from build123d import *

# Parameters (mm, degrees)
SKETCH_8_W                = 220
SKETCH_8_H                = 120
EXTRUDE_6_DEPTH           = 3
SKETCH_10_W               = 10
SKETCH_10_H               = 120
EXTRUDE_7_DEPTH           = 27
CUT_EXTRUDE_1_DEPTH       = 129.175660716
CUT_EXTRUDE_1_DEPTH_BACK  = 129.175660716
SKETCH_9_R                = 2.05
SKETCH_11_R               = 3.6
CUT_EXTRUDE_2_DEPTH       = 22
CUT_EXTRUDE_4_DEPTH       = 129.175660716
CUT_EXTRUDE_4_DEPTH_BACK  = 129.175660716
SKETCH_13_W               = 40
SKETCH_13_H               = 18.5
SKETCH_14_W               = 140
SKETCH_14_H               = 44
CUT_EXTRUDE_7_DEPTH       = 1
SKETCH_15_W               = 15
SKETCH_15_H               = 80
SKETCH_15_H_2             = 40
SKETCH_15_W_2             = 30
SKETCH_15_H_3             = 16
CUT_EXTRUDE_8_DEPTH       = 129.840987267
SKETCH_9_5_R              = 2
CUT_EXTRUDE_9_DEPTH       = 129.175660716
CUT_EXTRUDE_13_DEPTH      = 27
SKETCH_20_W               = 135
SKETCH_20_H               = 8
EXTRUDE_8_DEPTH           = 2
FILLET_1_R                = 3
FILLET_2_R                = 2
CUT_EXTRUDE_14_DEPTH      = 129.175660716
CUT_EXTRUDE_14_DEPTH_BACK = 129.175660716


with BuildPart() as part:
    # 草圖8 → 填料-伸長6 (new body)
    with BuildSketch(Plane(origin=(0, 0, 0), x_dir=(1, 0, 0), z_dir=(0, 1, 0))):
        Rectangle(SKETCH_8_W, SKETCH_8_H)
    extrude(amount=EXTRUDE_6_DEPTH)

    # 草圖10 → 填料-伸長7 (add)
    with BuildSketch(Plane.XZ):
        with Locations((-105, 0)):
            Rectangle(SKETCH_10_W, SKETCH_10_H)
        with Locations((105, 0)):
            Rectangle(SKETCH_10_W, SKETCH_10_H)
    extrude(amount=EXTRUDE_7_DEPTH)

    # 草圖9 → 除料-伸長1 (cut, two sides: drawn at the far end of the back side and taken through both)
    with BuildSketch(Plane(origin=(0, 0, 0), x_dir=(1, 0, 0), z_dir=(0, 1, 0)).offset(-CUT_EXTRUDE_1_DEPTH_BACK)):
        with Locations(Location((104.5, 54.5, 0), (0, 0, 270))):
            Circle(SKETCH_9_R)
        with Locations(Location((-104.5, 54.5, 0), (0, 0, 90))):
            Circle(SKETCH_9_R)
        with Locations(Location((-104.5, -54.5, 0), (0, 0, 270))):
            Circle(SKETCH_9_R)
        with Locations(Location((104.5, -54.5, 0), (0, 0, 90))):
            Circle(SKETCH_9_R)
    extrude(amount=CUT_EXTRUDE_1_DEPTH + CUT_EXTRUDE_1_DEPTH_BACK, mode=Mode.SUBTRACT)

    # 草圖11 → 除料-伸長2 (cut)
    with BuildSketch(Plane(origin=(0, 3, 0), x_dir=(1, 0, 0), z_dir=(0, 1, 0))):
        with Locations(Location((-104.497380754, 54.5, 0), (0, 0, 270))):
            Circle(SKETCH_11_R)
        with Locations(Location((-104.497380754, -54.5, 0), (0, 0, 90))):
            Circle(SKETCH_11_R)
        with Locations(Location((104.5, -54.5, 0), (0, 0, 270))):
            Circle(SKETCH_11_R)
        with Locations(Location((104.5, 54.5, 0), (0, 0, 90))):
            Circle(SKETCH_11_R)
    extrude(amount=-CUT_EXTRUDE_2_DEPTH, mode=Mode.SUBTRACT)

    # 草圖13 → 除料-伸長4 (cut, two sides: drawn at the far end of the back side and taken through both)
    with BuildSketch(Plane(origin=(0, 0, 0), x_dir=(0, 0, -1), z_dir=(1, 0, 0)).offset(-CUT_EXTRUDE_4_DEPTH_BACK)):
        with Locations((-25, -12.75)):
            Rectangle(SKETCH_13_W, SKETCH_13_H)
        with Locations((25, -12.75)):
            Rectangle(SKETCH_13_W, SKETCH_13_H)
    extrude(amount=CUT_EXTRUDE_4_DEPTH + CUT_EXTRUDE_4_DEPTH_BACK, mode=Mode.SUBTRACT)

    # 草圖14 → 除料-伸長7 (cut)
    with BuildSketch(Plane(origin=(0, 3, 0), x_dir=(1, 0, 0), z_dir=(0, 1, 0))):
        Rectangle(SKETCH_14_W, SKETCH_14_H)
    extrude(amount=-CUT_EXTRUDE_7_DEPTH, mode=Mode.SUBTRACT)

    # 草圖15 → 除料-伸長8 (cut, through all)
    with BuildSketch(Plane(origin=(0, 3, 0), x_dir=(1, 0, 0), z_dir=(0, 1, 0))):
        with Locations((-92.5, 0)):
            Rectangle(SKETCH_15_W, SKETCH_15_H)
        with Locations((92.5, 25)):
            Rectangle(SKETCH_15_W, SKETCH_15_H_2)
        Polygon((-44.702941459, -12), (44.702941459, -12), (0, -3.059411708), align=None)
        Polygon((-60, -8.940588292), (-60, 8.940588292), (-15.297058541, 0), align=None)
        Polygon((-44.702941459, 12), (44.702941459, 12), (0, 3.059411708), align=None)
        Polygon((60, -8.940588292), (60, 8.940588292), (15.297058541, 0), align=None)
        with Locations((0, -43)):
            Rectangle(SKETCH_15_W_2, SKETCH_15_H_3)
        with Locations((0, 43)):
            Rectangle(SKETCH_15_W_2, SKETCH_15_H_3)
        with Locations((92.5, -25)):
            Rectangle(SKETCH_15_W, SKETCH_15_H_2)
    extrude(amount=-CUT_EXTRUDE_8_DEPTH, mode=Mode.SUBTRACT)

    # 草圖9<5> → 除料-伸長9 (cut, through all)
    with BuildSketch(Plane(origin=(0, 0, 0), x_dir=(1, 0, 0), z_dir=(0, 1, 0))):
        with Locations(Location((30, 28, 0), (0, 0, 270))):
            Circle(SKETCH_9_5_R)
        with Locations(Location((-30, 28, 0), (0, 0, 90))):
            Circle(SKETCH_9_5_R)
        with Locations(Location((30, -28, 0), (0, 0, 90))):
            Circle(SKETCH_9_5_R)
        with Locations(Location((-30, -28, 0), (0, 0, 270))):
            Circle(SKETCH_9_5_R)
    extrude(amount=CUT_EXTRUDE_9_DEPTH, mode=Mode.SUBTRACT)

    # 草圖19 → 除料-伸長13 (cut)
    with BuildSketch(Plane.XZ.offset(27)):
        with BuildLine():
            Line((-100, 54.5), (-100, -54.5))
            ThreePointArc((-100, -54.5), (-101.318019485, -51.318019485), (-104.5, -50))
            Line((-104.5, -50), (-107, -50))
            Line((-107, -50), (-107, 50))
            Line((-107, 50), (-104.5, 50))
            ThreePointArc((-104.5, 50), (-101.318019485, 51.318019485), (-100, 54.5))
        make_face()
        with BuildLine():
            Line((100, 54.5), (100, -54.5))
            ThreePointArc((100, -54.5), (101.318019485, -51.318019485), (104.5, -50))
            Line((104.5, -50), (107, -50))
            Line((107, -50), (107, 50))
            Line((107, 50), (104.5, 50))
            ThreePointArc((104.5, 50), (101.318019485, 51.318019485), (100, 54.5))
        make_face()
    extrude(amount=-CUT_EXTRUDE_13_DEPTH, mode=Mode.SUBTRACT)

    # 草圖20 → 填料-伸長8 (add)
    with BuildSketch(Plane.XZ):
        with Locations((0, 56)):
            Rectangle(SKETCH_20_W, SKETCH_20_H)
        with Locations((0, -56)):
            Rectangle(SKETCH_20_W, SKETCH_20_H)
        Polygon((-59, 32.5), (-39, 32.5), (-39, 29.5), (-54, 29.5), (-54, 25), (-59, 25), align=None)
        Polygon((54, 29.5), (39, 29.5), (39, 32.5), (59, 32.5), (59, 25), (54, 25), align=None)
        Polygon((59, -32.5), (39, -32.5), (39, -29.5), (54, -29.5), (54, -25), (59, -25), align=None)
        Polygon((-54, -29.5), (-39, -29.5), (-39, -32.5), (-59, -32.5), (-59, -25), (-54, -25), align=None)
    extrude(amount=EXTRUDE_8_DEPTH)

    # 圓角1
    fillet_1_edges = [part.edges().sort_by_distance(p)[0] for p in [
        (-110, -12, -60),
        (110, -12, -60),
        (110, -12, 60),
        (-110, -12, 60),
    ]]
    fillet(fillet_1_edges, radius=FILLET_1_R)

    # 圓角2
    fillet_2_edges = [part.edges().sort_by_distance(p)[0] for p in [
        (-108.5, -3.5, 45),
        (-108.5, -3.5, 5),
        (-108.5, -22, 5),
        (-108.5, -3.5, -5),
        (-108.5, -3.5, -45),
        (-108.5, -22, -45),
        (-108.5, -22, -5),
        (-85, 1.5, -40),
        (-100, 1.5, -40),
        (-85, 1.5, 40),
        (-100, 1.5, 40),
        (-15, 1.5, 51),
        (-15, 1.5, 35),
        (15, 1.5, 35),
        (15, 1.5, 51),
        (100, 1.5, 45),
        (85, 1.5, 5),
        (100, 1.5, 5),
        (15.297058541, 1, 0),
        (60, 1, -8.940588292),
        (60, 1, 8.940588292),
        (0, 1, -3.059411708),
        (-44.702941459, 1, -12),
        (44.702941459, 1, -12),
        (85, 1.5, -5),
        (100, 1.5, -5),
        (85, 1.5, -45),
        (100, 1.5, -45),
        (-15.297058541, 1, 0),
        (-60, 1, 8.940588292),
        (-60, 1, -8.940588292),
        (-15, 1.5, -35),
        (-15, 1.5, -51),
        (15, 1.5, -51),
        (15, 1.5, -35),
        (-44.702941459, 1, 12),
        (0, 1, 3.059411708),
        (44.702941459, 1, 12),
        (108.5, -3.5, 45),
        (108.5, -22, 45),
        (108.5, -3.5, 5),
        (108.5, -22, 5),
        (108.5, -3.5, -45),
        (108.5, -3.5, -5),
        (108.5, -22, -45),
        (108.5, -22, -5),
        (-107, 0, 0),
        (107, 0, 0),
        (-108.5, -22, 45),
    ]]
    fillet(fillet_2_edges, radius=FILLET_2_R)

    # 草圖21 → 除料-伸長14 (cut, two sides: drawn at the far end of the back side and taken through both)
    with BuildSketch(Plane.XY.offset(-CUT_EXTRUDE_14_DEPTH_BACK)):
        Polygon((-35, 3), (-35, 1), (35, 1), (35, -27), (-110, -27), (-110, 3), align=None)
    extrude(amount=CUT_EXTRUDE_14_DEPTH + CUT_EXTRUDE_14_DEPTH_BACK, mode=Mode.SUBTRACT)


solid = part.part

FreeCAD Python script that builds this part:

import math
import FreeCAD as App
import Part
import Sketcher
from FreeCAD import Vector
Q = App.Units.Quantity


def edges_at(feature, points):
    """Names of the edges that pass closest to the given points."""
    edges = feature.Shape.Edges
    near = lambda p: min(range(len(edges)), key=lambda i: edges[i].distToShape(Part.Vertex(*p))[0])
    return sorted({f"Edge{near(p) + 1}" for p in points})


def add_polygon(sketch, points):
    """Adds a closed chain of lines whose ends are joined by coincident constraints."""
    first, n = sketch.GeometryCount, len(points)
    for a, b in zip(points, points[1:] + points[:1]):
        sketch.addGeometry(Part.LineSegment(App.Vector(*a, 0), App.Vector(*b, 0)), False)
    for i in range(n):
        sketch.addConstraint(Sketcher.Constraint("Coincident", first + i, 2, first + (i + 1) % n, 1))

doc = App.newDocument("Part")
body = doc.addObject("PartDesign::Body", "Body")

sketch1 = body.newObject("Sketcher::SketchObject", "Sketch")
sketch1.AttachmentSupport = (doc.getObject("XZ_Plane"), [""])
sketch1.MapMode = "FlatFace"
add_polygon(sketch1, [(-110, -60), (-110, 60), (110, 60), (110, -60)])
sketch1.addConstraint([
    Sketcher.Constraint("Vertical", 0),
    Sketcher.Constraint("Horizontal", 1),
    Sketcher.Constraint("Vertical", 2),
    Sketcher.Constraint("Horizontal", 3),
    Sketcher.Constraint("Symmetric", 0, 2, 2, 2, -1, 1),
    Sketcher.Constraint("DistanceX", 1, 1, 1, 2, Q("220 mm")),
    Sketcher.Constraint("DistanceY", 0, 1, 0, 2, Q("120 mm")),
])
pad1 = body.newObject("PartDesign::Pad", "Pad")
pad1.Profile = sketch1
pad1.Length = 3
pad1.Reversed = True

sketch2 = body.newObject("Sketcher::SketchObject", "Sketch001")
sketch2.AttachmentSupport = (doc.getObject("XZ_Plane"), [""])
sketch2.MapMode = "FlatFace"
add_polygon(sketch2, [(-110, 60), (-110, -60), (-100, -60), (-100, 60)])
add_polygon(sketch2, [(100, 60), (100, -60), (110, -60), (110, 60)])
sketch2.addConstraint([
    Sketcher.Constraint("Vertical", 0),
    Sketcher.Constraint("Horizontal", 1),
    Sketcher.Constraint("Vertical", 2),
    Sketcher.Constraint("Horizontal", 3),
    Sketcher.Constraint("Vertical", 4),
    Sketcher.Constraint("Horizontal", 5),
    Sketcher.Constraint("Vertical", 6),
    Sketcher.Constraint("Horizontal", 7),
    Sketcher.Constraint("Symmetric", 2, 2, 4, 2, -1, 1),
    Sketcher.Constraint("Symmetric", 0, 2, 6, 2, -1, 1),
    Sketcher.Constraint("Horizontal", 1, 2, 4, 2),
    Sketcher.Constraint("DistanceX", 1, 1, 1, 2, Q("10 mm")),
    Sketcher.Constraint("DistanceY", 0, 2, 0, 1, Q("120 mm")),
    Sketcher.Constraint("DistanceX", 0, 2, -1, 1, Q("110 mm")),
])
pad2 = body.newObject("PartDesign::Pad", "Pad001")
pad2.Profile = sketch2
pad2.Length = 27

sketch3 = body.newObject("Sketcher::SketchObject", "Sketch002")
sketch3.AttachmentSupport = (doc.getObject("XZ_Plane"), [""])
sketch3.MapMode = "FlatFace"
sketch3.addGeometry([
    Part.Circle(Vector(104.5, -54.5, 0), Vector(0, 0, 1), 2.05),
    Part.Circle(Vector(-104.5, -54.5, 0), Vector(0, 0, 1), 2.05),
    Part.Circle(Vector(-104.5, 54.5, 0), Vector(0, 0, 1), 2.05),
    Part.Circle(Vector(104.5, 54.5, 0), Vector(0, 0, 1), 2.05),
], False)
sketch3.addConstraint([
    Sketcher.Constraint("Equal", 0, 1),
    Sketcher.Constraint("Equal", 1, 2),
    Sketcher.Constraint("Equal", 2, 3),
    Sketcher.Constraint("Symmetric", 0, 3, 2, 3, -1, 1),
    Sketcher.Constraint("Symmetric", 1, 3, 3, 3, -1, 1),
    Sketcher.Constraint("Symmetric", 0, 3, 1, 3, -2),
    Sketcher.Constraint("Diameter", 0, Q("4.1 mm")),
    Sketcher.Constraint("DistanceX", 1, 3, 0, 3, Q("209 mm")),
    Sketcher.Constraint("DistanceY", 1, 3, 2, 3, Q("109 mm")),
])
pocket1 = body.newObject("PartDesign::Pocket", "Pocket")
pocket1.Profile = sketch3
pocket1.Type = "ThroughAll"
pocket1.Midplane = True

sketch4 = body.newObject("Sketcher::SketchObject", "Sketch003")
sketch4.AttachmentSupport = (doc.getObject("XZ_Plane"), [""])
sketch4.MapMode = "FlatFace"
sketch4.AttachmentOffset = App.Placement(Vector(0, 0, -3), App.Rotation())
sketch4.addGeometry([
    Part.Circle(Vector(-104.497381, -54.5, 0), Vector(0, 0, 1), 3.6),
    Part.Circle(Vector(-104.497381, 54.5, 0), Vector(0, 0, 1), 3.6),
    Part.Circle(Vector(104.5, 54.5, 0), Vector(0, 0, 1), 3.6),
    Part.Circle(Vector(104.5, -54.5, 0), Vector(0, 0, 1), 3.6),
], False)
sketch4.addConstraint([
    Sketcher.Constraint("Equal", 0, 1),
    Sketcher.Constraint("Equal", 1, 2),
    Sketcher.Constraint("Equal", 2, 3),
    Sketcher.Constraint("Symmetric", 0, 3, 1, 3, -1),
    Sketcher.Constraint("Symmetric", 2, 3, 3, 3, -1),
    Sketcher.Constraint("Horizontal", 1, 3, 2, 3),
    Sketcher.Constraint("Diameter", 0, Q("7.2 mm")),
    Sketcher.Constraint("DistanceY", 0, 3, 1, 3, Q("109 mm")),
    Sketcher.Constraint("DistanceX", -1, 1, 2, 3, Q("104.5 mm")),
    Sketcher.Constraint("DistanceX", 0, 3, -1, 1, Q("104.497381 mm")),
])
pocket2 = body.newObject("PartDesign::Pocket", "Pocket001")
pocket2.Profile = sketch4
pocket2.Length = 22
pocket2.Reversed = True

sketch5 = body.newObject("Sketcher::SketchObject", "Sketch004")
sketch5.AttachmentSupport = (doc.getObject("YZ_Plane"), [""])
sketch5.MapMode = "FlatFace"
add_polygon(sketch5, [(-3.5, 45), (-22, 45), (-22, 5), (-3.5, 5)])
add_polygon(sketch5, [(-3.5, -5), (-22, -5), (-22, -45), (-3.5, -45)])
sketch5.addConstraint([
    Sketcher.Constraint("Horizontal", 0),
    Sketcher.Constraint("Vertical", 1),
    Sketcher.Constraint("Horizontal", 2),
    Sketcher.Constraint("Vertical", 3),
    Sketcher.Constraint("Horizontal", 4),
    Sketcher.Constraint("Vertical", 5),
    Sketcher.Constraint("Horizontal", 6),
    Sketcher.Constraint("Vertical", 7),
    Sketcher.Constraint("Symmetric", 1, 2, 4, 2, -1),
    Sketcher.Constraint("Symmetric", 3, 2, 6, 2, -1),
    Sketcher.Constraint("DistanceY", 1, 2, 1, 1, Q("40 mm")),
    Sketcher.Constraint("DistanceX", 0, 2, 0, 1, Q("18.5 mm")),
    Sketcher.Constraint("DistanceX", 0, 2, -1, 1, Q("22 mm")),
    Sketcher.Constraint("DistanceY", -1, 1, 0, 2, Q("45 mm")),
])
pocket3 = body.newObject("PartDesign::Pocket", "Pocket002")
pocket3.Profile = sketch5
pocket3.Type = "ThroughAll"
pocket3.Midplane = True

sketch6 = body.newObject("Sketcher::SketchObject", "Sketch005")
sketch6.AttachmentSupport = (doc.getObject("XZ_Plane"), [""])
sketch6.MapMode = "FlatFace"
sketch6.AttachmentOffset = App.Placement(Vector(0, 0, -3), App.Rotation())
add_polygon(sketch6, [(-70, -22), (-70, 22), (70, 22), (70, -22)])
sketch6.addConstraint([
    Sketcher.Constraint("Vertical", 0),
    Sketcher.Constraint("Horizontal", 1),
    Sketcher.Constraint("Vertical", 2),
    Sketcher.Constraint("Horizontal", 3),
    Sketcher.Constraint("Symmetric", 0, 2, 2, 2, -1, 1),
    Sketcher.Constraint("DistanceX", 1, 1, 1, 2, Q("140 mm")),
    Sketcher.Constraint("DistanceY", 0, 1, 0, 2, Q("44 mm")),
])
pocket4 = body.newObject("PartDesign::Pocket", "Pocket003")
pocket4.Profile = sketch6
pocket4.Length = 1
pocket4.Reversed = True

sketch7 = body.newObject("Sketcher::SketchObject", "Sketch006")
sketch7.AttachmentSupport = (doc.getObject("XZ_Plane"), [""])
sketch7.MapMode = "FlatFace"
sketch7.AttachmentOffset = App.Placement(Vector(0, 0, -3), App.Rotation())
add_polygon(sketch7, [(-100, -40), (-100, 40), (-85, 40), (-85, -40)])
add_polygon(sketch7, [(85, -45), (85, -5), (100, -5), (100, -45)])
add_polygon(sketch7, [(-44.702941, 12), (44.702941, 12), (0, 3.059412)])
add_polygon(sketch7, [(-60, -8.940588), (-60, 8.940588), (-15.297059, 0)])
add_polygon(sketch7, [(44.702941, -12), (-44.702941, -12), (0, -3.059412)])
add_polygon(sketch7, [(60, 8.940588), (60, -8.940588), (15.297059, 0)])
add_polygon(sketch7, [(-15, 35), (-15, 51), (15, 51), (15, 35)])
add_polygon(sketch7, [(-15, -51), (-15, -35), (15, -35), (15, -51)])
add_polygon(sketch7, [(85, 5), (85, 45), (100, 45), (100, 5)])
sketch7.addConstraint([
    Sketcher.Constraint("Vertical", 0),
    Sketcher.Constraint("Horizontal", 1),
    Sketcher.Constraint("Vertical", 2),
    Sketcher.Constraint("Horizontal", 3),
    Sketcher.Constraint("Vertical", 4),
    Sketcher.Constraint("Horizontal", 5),
    Sketcher.Constraint("Vertical", 6),
    Sketcher.Constraint("Horizontal", 7),
    Sketcher.Constraint("Horizontal", 8),
    Sketcher.Constraint("Vertical", 11),
    Sketcher.Constraint("Horizontal", 14),
    Sketcher.Constraint("Vertical", 17),
    Sketcher.Constraint("Vertical", 20),
    Sketcher.Constraint("Horizontal", 21),
    Sketcher.Constraint("Vertical", 22),
    Sketcher.Constraint("Horizontal", 23),
    Sketcher.Constraint("Vertical", 24),
    Sketcher.Constraint("Horizontal", 25),
    Sketcher.Constraint("Vertical", 26),
    Sketcher.Constraint("Horizontal", 27),
    Sketcher.Constraint("Vertical", 28),
    Sketcher.Constraint("Horizontal", 29),
    Sketcher.Constraint("Vertical", 30),
    Sketcher.Constraint("Horizontal", 31),
    Sketcher.Constraint("Symmetric", 8, 2, 14, 2, -1, 1),
    Sketcher.Constraint("Symmetric", 9, 2, 15, 2, -1, 1),
    Sketcher.Constraint("Symmetric", 11, 2, 17, 2, -1, 1),
    Sketcher.Constraint("Symmetric", 12, 2, 18, 2, -1, 1),
    Sketcher.Constraint("Symmetric", 22, 2, 24, 2, -1, 1),
    Sketcher.Constraint("Symmetric", 20, 2, 26, 2, -1, 1),
    Sketcher.Constraint("Symmetric", 7, 2, 28, 2, -1),
    Sketcher.Constraint("Symmetric", 5, 2, 30, 2, -1),
    Sketcher.Constraint("PointOnObject", 9, 2, -2),
    Sketcher.Constraint("PointOnObject", 12, 2, -1),
    Sketcher.Constraint("Parallel", 10, 12),
    Sketcher.Constraint("Parallel", 9, 13),
    Sketcher.Constraint("Parallel", 12, 16),
    Sketcher.Constraint("Parallel", 15, 19),
    Sketcher.Constraint("Horizontal", 13, 2, 17, 2),
    Sketcher.Constraint("Vertical", 23, 2, 24, 2),
    Sketcher.Constraint("Equal", 3, 5),
    Sketcher.Constraint("Equal", 10, 12),
    Sketcher.Constraint("DistanceX", 1, 1, 1, 2, Q("15 mm")),
    Sketcher.Constraint("DistanceX", 21, 1, 21, 2, Q("30 mm")),
    Sketcher.Constraint("DistanceY", 0, 1, 0, 2, Q("80 mm")),
    Sketcher.Constraint("DistanceY", 4, 1, 4, 2, Q("40 mm")),
    Sketcher.Constraint("DistanceY", 20, 1, 20, 2, Q("16 mm")),
    Sketcher.Constraint("DistanceX", 0, 2, -1, 1, Q("100 mm")),
    Sketcher.Constraint("DistanceY", -1, 1, 0, 2, Q("40 mm")),
    Sketcher.Constraint("DistanceX", -1, 1, 4, 2, Q("85 mm")),
    Sketcher.Constraint("DistanceY", 4, 2, -1, 1, Q("5 mm")),
    Sketcher.Constraint("DistanceY", -1, 1, 8, 2, Q("12 mm")),
    Sketcher.Constraint("DistanceX", 11, 2, -1, 1, Q("60 mm")),
    Sketcher.Constraint("DistanceY", -1, 1, 20, 2, Q("51 mm")),
    Sketcher.Constraint("DistanceX", 8, 1, 8, 2, Q("89.405883 mm")),
    Sketcher.Constraint("DistanceY", 11, 1, 11, 2, Q("17.881177 mm")),
])
pocket5 = body.newObject("PartDesign::Pocket", "Pocket004")
pocket5.Profile = sketch7
pocket5.Type = "ThroughAll"
pocket5.Reversed = True

sketch8 = body.newObject("Sketcher::SketchObject", "Sketch007")
sketch8.AttachmentSupport = (doc.getObject("XZ_Plane"), [""])
sketch8.MapMode = "FlatFace"
sketch8.addGeometry([
    Part.Circle(Vector(30, -28, 0), Vector(0, 0, 1), 2),
    Part.Circle(Vector(-30, -28, 0), Vector(0, 0, 1), 2),
    Part.Circle(Vector(30, 28, 0), Vector(0, 0, 1), 2),
    Part.Circle(Vector(-30, 28, 0), Vector(0, 0, 1), 2),
], False)
sketch8.addConstraint([
    Sketcher.Constraint("Equal", 0, 1),
    Sketcher.Constraint("Equal", 1, 2),
    Sketcher.Constraint("Equal", 2, 3),
    Sketcher.Constraint("Symmetric", 1, 3, 2, 3, -1, 1),
    Sketcher.Constraint("Symmetric", 0, 3, 3, 3, -1, 1),
    Sketcher.Constraint("Symmetric", 0, 3, 1, 3, -2),
    Sketcher.Constraint("Diameter", 0, Q("4 mm")),
    Sketcher.Constraint("DistanceX", -1, 1, 0, 3, Q("30 mm")),
    Sketcher.Constraint("DistanceY", 0, 3, -1, 1, Q("28 mm")),
])
pocket6 = body.newObject("PartDesign::Pocket", "Pocket005")
pocket6.Profile = sketch8
pocket6.Type = "ThroughAll"

sketch9 = body.newObject("Sketcher::SketchObject", "Sketch008")
sketch9.AttachmentSupport = (doc.getObject("XZ_Plane"), [""])
sketch9.MapMode = "FlatFace"
sketch9.AttachmentOffset = App.Placement(Vector(0, 0, 27), App.Rotation())
sketch9.addGeometry([
    Part.LineSegment(Vector(-100, -54.5, 0), Vector(-100, 54.5, 0)),
    Part.ArcOfCircle(Part.Circle(Vector(-104.5, 54.5, 0), Vector(0, 0, 1), 4.5), math.radians(-90), math.radians(0)),
    Part.LineSegment(Vector(-104.5, 50, 0), Vector(-107, 50, 0)),
    Part.LineSegment(Vector(-107, 50, 0), Vector(-107, -50, 0)),
    Part.LineSegment(Vector(-107, -50, 0), Vector(-104.5, -50, 0)),
    Part.ArcOfCircle(Part.Circle(Vector(-104.5, -54.5, 0), Vector(0, 0, 1), 4.5), math.radians(0), math.radians(90)),
    Part.LineSegment(Vector(100, 54.5, 0), Vector(100, -54.5, 0)),
    Part.ArcOfCircle(Part.Circle(Vector(104.5, -54.5, 0), Vector(0, 0, 1), 4.5), math.radians(90), math.radians(180)),
    Part.LineSegment(Vector(104.5, -50, 0), Vector(107, -50, 0)),
    Part.LineSegment(Vector(107, -50, 0), Vector(107, 50, 0)),
    Part.LineSegment(Vector(107, 50, 0), Vector(104.5, 50, 0)),
    Part.ArcOfCircle(Part.Circle(Vector(104.5, 54.5, 0), Vector(0, 0, 1), 4.5), math.radians(-180), math.radians(-90)),
], False)
sketch9.addConstraint([
    Sketcher.Constraint("Tangent", 0, 2, 1, 2),
    Sketcher.Constraint("Tangent", 1, 1, 2, 1),
    Sketcher.Constraint("Coincident", 2, 2, 3, 1),
    Sketcher.Constraint("Coincident", 3, 2, 4, 1),
    Sketcher.Constraint("Tangent", 4, 2, 5, 2),
    Sketcher.Constraint("Tangent", 5, 1, 0, 1),
    Sketcher.Constraint("Tangent", 6, 2, 7, 2),
    Sketcher.Constraint("Tangent", 7, 1, 8, 1),
    Sketcher.Constraint("Coincident", 8, 2, 9, 1),
    Sketcher.Constraint("Coincident", 9, 2, 10, 1),
    Sketcher.Constraint("Tangent", 10, 2, 11, 2),
    Sketcher.Constraint("Tangent", 11, 1, 6, 1),
    Sketcher.Constraint("Vertical", 0),
    Sketcher.Constraint("Horizontal", 2),
    Sketcher.Constraint("Vertical", 3),
    Sketcher.Constraint("Horizontal", 4),
    Sketcher.Constraint("Vertical", 6),
    Sketcher.Constraint("Horizontal", 8),
    Sketcher.Constraint("Vertical", 9),
    Sketcher.Constraint("Horizontal", 10),
    Sketcher.Constraint("Equal", 1, 5),
    Sketcher.Constraint("Equal", 5, 7),
    Sketcher.Constraint("Equal", 7, 11),
    Sketcher.Constraint("Symmetric", 1, 3, 7, 3, -1, 1),
    Sketcher.Constraint("Symmetric", 3, 2, 9, 2, -1, 1),
    Sketcher.Constraint("Horizontal", 5, 3, 7, 3),
    Sketcher.Constraint("Radius", 1, Q("4.5 mm")),
    Sketcher.Constraint("DistanceY", 0, 1, 0, 2, Q("109 mm")),
    Sketcher.Constraint("DistanceX", 2, 2, 2, 1, Q("2.5 mm")),
    Sketcher.Constraint("DistanceX", 0, 2, -1, 1, Q("100 mm")),
])
pocket7 = body.newObject("PartDesign::Pocket", "Pocket006")
pocket7.Profile = sketch9
pocket7.Length = 27

sketch10 = body.newObject("Sketcher::SketchObject", "Sketch009")
sketch10.AttachmentSupport = (doc.getObject("XZ_Plane"), [""])
sketch10.MapMode = "FlatFace"
add_polygon(sketch10, [(-67.5, 60), (-67.5, 52), (67.5, 52), (67.5, 60)])
add_polygon(sketch10, [(-67.5, -52), (-67.5, -60), (67.5, -60), (67.5, -52)])
add_polygon(sketch10, [(-39, 32.5), (-59, 32.5), (-59, 25), (-54, 25), (-54, 29.5), (-39, 29.5)])
add_polygon(sketch10, [(39, 29.5), (54, 29.5), (54, 25), (59, 25), (59, 32.5), (39, 32.5)])
add_polygon(sketch10, [(39, -32.5), (59, -32.5), (59, -25), (54, -25), (54, -29.5), (39, -29.5)])
add_polygon(sketch10, [(-39, -29.5), (-54, -29.5), (-54, -25), (-59, -25), (-59, -32.5), (-39, -32.5)])
sketch10.addConstraint([
    Sketcher.Constraint("Vertical", 0),
    Sketcher.Constraint("Horizontal", 1),
    Sketcher.Constraint("Vertical", 2),
    Sketcher.Constraint("Horizontal", 3),
    Sketcher.Constraint("Vertical", 4),
    Sketcher.Constraint("Horizontal", 5),
    Sketcher.Constraint("Vertical", 6),
    Sketcher.Constraint("Horizontal", 7),
    Sketcher.Constraint("Horizontal", 8),
    Sketcher.Constraint("Vertical", 9),
    Sketcher.Constraint("Horizontal", 10),
    Sketcher.Constraint("Vertical", 11),
    Sketcher.Constraint("Horizontal", 12),
    Sketcher.Constraint("Vertical", 13),
    Sketcher.Constraint("Horizontal", 14),
    Sketcher.Constraint("Vertical", 15),
    Sketcher.Constraint("Horizontal", 16),
    Sketcher.Constraint("Vertical", 17),
    Sketcher.Constraint("Horizontal", 18),
    Sketcher.Constraint("Vertical", 19),
    Sketcher.Constraint("Horizontal", 20),
    Sketcher.Constraint("Vertical", 21),
    Sketcher.Constraint("Horizontal", 22),
    Sketcher.Constraint("Vertical", 23),
    Sketcher.Constraint("Horizontal", 24),
    Sketcher.Constraint("Vertical", 25),
    Sketcher.Constraint("Horizontal", 26),
    Sketcher.Constraint("Vertical", 27),
    Sketcher.Constraint("Horizontal", 28),
    Sketcher.Constraint("Vertical", 29),
    Sketcher.Constraint("Horizontal", 30),
    Sketcher.Constraint("Vertical", 31),
    Sketcher.Constraint("Symmetric", 2, 2, 4, 2, -1, 1),
    Sketcher.Constraint("Symmetric", 0, 2, 6, 2, -1, 1),
    Sketcher.Constraint("Symmetric", 8, 2, 20, 2, -1, 1),
    Sketcher.Constraint("Symmetric", 10, 2, 22, 2, -1, 1),
    Sketcher.Constraint("Symmetric", 12, 2, 24, 2, -1, 1),
    Sketcher.Constraint("Symmetric", 14, 2, 26, 2, -1, 1),
    Sketcher.Constraint("Symmetric", 16, 2, 28, 2, -1, 1),
    Sketcher.Constraint("Symmetric", 18, 2, 30, 2, -1, 1),
    Sketcher.Constraint("Symmetric", 11, 2, 14, 2, -2),
    Sketcher.Constraint("Symmetric", 9, 2, 16, 2, -2),
    Sketcher.Constraint("Symmetric", 13, 2, 18, 2, -2),
    Sketcher.Constraint("Vertical", 3, 2, 4, 2),
    Sketcher.Constraint("DistanceX", 1, 1, 1, 2, Q("135 mm")),
    Sketcher.Constraint("DistanceX", 8, 2, 8, 1, Q("20 mm")),
    Sketcher.Constraint("DistanceX", 10, 1, 10, 2, Q("5 mm")),
    Sketcher.Constraint("DistanceY", 0, 2, 0, 1, Q("8 mm")),
    Sketcher.Constraint("DistanceY", 13, 1, 13, 2, Q("3 mm")),
    Sketcher.Constraint("DistanceY", 9, 2, 9, 1, Q("7.5 mm")),
    Sketcher.Constraint("DistanceY", -1, 1, 0, 2, Q("52 mm")),
    Sketcher.Constraint("DistanceX", 8, 2, -1, 1, Q("59 mm")),
    Sketcher.Constraint("DistanceY", -1, 1, 9, 2, Q("25 mm")),
])
pad3 = body.newObject("PartDesign::Pad", "Pad002")
pad3.Profile = sketch10
pad3.Length = 2
doc.recompute()

fillet = body.newObject("PartDesign::Fillet", "Fillet")
fillet.Base = (pad3, edges_at(pad3, [
    (-110, -12, -60),
    (110, -12, -60),
    (110, -12, 60),
    (-110, -12, 60),
]))
fillet.Radius = 3
doc.recompute()

fillet2 = body.newObject("PartDesign::Fillet", "Fillet001")
fillet2.Base = (fillet, edges_at(fillet, [
    (-108.5, -3.5, 45),
    (-108.5, -3.5, 5),
    (-108.5, -22, 5),
    (-108.5, -3.5, -5),
    (-108.5, -3.5, -45),
    (-108.5, -22, -45),
    (-108.5, -22, -5),
    (-85, 1.5, -40),
    (-100, 1.5, -40),
    (-85, 1.5, 40),
    (-100, 1.5, 40),
    (-15, 1.5, 51),
    (-15, 1.5, 35),
    (15, 1.5, 35),
    (15, 1.5, 51),
    (100, 1.5, 45),
    (85, 1.5, 5),
    (100, 1.5, 5),
    (15.297, 1, 0),
    (60, 1, -8.941),
    (60, 1, 8.941),
    (0, 1, -3.059),
    (-44.703, 1, -12),
    (44.703, 1, -12),
    (85, 1.5, -5),
    (100, 1.5, -5),
    (85, 1.5, -45),
    (100, 1.5, -45),
    (-15.297, 1, 0),
    (-60, 1, 8.941),
    (-60, 1, -8.941),
    (-15, 1.5, -35),
    (-15, 1.5, -51),
    (15, 1.5, -51),
    (15, 1.5, -35),
    (-44.703, 1, 12),
    (0, 1, 3.059),
    (44.703, 1, 12),
    (108.5, -3.5, 45),
    (108.5, -22, 45),
    (108.5, -3.5, 5),
    (108.5, -22, 5),
    (108.5, -3.5, -45),
    (108.5, -3.5, -5),
    (108.5, -22, -45),
    (108.5, -22, -5),
    (-107, 0, 0),
    (107, 0, 0),
    (-108.5, -22, 45),
]))
fillet2.Radius = 2

sketch11 = body.newObject("Sketcher::SketchObject", "Sketch010")
sketch11.AttachmentSupport = (doc.getObject("XY_Plane"), [""])
sketch11.MapMode = "FlatFace"
add_polygon(sketch11, [(-35, 1), (-35, 3), (-110, 3), (-110, -27), (35, -27), (35, 1)])
sketch11.addConstraint([
    Sketcher.Constraint("Vertical", 0),
    Sketcher.Constraint("Horizontal", 1),
    Sketcher.Constraint("Vertical", 2),
    Sketcher.Constraint("Horizontal", 3),
    Sketcher.Constraint("Vertical", 4),
    Sketcher.Constraint("Horizontal", 5),
    Sketcher.Constraint("DistanceX", 1, 2, 1, 1, Q("75 mm")),
    Sketcher.Constraint("DistanceX", 3, 1, 3, 2, Q("145 mm")),
    Sketcher.Constraint("DistanceY", 0, 1, 0, 2, Q("2 mm")),
    Sketcher.Constraint("DistanceY", 2, 2, 2, 1, Q("30 mm")),
    Sketcher.Constraint("DistanceX", 0, 2, -1, 1, Q("35 mm")),
    Sketcher.Constraint("DistanceY", -1, 1, 0, 2, Q("3 mm")),
])
pocket8 = body.newObject("PartDesign::Pocket", "Pocket007")
pocket8.Profile = sketch11
pocket8.Type = "ThroughAll"
pocket8.Midplane = True

doc.recompute()
